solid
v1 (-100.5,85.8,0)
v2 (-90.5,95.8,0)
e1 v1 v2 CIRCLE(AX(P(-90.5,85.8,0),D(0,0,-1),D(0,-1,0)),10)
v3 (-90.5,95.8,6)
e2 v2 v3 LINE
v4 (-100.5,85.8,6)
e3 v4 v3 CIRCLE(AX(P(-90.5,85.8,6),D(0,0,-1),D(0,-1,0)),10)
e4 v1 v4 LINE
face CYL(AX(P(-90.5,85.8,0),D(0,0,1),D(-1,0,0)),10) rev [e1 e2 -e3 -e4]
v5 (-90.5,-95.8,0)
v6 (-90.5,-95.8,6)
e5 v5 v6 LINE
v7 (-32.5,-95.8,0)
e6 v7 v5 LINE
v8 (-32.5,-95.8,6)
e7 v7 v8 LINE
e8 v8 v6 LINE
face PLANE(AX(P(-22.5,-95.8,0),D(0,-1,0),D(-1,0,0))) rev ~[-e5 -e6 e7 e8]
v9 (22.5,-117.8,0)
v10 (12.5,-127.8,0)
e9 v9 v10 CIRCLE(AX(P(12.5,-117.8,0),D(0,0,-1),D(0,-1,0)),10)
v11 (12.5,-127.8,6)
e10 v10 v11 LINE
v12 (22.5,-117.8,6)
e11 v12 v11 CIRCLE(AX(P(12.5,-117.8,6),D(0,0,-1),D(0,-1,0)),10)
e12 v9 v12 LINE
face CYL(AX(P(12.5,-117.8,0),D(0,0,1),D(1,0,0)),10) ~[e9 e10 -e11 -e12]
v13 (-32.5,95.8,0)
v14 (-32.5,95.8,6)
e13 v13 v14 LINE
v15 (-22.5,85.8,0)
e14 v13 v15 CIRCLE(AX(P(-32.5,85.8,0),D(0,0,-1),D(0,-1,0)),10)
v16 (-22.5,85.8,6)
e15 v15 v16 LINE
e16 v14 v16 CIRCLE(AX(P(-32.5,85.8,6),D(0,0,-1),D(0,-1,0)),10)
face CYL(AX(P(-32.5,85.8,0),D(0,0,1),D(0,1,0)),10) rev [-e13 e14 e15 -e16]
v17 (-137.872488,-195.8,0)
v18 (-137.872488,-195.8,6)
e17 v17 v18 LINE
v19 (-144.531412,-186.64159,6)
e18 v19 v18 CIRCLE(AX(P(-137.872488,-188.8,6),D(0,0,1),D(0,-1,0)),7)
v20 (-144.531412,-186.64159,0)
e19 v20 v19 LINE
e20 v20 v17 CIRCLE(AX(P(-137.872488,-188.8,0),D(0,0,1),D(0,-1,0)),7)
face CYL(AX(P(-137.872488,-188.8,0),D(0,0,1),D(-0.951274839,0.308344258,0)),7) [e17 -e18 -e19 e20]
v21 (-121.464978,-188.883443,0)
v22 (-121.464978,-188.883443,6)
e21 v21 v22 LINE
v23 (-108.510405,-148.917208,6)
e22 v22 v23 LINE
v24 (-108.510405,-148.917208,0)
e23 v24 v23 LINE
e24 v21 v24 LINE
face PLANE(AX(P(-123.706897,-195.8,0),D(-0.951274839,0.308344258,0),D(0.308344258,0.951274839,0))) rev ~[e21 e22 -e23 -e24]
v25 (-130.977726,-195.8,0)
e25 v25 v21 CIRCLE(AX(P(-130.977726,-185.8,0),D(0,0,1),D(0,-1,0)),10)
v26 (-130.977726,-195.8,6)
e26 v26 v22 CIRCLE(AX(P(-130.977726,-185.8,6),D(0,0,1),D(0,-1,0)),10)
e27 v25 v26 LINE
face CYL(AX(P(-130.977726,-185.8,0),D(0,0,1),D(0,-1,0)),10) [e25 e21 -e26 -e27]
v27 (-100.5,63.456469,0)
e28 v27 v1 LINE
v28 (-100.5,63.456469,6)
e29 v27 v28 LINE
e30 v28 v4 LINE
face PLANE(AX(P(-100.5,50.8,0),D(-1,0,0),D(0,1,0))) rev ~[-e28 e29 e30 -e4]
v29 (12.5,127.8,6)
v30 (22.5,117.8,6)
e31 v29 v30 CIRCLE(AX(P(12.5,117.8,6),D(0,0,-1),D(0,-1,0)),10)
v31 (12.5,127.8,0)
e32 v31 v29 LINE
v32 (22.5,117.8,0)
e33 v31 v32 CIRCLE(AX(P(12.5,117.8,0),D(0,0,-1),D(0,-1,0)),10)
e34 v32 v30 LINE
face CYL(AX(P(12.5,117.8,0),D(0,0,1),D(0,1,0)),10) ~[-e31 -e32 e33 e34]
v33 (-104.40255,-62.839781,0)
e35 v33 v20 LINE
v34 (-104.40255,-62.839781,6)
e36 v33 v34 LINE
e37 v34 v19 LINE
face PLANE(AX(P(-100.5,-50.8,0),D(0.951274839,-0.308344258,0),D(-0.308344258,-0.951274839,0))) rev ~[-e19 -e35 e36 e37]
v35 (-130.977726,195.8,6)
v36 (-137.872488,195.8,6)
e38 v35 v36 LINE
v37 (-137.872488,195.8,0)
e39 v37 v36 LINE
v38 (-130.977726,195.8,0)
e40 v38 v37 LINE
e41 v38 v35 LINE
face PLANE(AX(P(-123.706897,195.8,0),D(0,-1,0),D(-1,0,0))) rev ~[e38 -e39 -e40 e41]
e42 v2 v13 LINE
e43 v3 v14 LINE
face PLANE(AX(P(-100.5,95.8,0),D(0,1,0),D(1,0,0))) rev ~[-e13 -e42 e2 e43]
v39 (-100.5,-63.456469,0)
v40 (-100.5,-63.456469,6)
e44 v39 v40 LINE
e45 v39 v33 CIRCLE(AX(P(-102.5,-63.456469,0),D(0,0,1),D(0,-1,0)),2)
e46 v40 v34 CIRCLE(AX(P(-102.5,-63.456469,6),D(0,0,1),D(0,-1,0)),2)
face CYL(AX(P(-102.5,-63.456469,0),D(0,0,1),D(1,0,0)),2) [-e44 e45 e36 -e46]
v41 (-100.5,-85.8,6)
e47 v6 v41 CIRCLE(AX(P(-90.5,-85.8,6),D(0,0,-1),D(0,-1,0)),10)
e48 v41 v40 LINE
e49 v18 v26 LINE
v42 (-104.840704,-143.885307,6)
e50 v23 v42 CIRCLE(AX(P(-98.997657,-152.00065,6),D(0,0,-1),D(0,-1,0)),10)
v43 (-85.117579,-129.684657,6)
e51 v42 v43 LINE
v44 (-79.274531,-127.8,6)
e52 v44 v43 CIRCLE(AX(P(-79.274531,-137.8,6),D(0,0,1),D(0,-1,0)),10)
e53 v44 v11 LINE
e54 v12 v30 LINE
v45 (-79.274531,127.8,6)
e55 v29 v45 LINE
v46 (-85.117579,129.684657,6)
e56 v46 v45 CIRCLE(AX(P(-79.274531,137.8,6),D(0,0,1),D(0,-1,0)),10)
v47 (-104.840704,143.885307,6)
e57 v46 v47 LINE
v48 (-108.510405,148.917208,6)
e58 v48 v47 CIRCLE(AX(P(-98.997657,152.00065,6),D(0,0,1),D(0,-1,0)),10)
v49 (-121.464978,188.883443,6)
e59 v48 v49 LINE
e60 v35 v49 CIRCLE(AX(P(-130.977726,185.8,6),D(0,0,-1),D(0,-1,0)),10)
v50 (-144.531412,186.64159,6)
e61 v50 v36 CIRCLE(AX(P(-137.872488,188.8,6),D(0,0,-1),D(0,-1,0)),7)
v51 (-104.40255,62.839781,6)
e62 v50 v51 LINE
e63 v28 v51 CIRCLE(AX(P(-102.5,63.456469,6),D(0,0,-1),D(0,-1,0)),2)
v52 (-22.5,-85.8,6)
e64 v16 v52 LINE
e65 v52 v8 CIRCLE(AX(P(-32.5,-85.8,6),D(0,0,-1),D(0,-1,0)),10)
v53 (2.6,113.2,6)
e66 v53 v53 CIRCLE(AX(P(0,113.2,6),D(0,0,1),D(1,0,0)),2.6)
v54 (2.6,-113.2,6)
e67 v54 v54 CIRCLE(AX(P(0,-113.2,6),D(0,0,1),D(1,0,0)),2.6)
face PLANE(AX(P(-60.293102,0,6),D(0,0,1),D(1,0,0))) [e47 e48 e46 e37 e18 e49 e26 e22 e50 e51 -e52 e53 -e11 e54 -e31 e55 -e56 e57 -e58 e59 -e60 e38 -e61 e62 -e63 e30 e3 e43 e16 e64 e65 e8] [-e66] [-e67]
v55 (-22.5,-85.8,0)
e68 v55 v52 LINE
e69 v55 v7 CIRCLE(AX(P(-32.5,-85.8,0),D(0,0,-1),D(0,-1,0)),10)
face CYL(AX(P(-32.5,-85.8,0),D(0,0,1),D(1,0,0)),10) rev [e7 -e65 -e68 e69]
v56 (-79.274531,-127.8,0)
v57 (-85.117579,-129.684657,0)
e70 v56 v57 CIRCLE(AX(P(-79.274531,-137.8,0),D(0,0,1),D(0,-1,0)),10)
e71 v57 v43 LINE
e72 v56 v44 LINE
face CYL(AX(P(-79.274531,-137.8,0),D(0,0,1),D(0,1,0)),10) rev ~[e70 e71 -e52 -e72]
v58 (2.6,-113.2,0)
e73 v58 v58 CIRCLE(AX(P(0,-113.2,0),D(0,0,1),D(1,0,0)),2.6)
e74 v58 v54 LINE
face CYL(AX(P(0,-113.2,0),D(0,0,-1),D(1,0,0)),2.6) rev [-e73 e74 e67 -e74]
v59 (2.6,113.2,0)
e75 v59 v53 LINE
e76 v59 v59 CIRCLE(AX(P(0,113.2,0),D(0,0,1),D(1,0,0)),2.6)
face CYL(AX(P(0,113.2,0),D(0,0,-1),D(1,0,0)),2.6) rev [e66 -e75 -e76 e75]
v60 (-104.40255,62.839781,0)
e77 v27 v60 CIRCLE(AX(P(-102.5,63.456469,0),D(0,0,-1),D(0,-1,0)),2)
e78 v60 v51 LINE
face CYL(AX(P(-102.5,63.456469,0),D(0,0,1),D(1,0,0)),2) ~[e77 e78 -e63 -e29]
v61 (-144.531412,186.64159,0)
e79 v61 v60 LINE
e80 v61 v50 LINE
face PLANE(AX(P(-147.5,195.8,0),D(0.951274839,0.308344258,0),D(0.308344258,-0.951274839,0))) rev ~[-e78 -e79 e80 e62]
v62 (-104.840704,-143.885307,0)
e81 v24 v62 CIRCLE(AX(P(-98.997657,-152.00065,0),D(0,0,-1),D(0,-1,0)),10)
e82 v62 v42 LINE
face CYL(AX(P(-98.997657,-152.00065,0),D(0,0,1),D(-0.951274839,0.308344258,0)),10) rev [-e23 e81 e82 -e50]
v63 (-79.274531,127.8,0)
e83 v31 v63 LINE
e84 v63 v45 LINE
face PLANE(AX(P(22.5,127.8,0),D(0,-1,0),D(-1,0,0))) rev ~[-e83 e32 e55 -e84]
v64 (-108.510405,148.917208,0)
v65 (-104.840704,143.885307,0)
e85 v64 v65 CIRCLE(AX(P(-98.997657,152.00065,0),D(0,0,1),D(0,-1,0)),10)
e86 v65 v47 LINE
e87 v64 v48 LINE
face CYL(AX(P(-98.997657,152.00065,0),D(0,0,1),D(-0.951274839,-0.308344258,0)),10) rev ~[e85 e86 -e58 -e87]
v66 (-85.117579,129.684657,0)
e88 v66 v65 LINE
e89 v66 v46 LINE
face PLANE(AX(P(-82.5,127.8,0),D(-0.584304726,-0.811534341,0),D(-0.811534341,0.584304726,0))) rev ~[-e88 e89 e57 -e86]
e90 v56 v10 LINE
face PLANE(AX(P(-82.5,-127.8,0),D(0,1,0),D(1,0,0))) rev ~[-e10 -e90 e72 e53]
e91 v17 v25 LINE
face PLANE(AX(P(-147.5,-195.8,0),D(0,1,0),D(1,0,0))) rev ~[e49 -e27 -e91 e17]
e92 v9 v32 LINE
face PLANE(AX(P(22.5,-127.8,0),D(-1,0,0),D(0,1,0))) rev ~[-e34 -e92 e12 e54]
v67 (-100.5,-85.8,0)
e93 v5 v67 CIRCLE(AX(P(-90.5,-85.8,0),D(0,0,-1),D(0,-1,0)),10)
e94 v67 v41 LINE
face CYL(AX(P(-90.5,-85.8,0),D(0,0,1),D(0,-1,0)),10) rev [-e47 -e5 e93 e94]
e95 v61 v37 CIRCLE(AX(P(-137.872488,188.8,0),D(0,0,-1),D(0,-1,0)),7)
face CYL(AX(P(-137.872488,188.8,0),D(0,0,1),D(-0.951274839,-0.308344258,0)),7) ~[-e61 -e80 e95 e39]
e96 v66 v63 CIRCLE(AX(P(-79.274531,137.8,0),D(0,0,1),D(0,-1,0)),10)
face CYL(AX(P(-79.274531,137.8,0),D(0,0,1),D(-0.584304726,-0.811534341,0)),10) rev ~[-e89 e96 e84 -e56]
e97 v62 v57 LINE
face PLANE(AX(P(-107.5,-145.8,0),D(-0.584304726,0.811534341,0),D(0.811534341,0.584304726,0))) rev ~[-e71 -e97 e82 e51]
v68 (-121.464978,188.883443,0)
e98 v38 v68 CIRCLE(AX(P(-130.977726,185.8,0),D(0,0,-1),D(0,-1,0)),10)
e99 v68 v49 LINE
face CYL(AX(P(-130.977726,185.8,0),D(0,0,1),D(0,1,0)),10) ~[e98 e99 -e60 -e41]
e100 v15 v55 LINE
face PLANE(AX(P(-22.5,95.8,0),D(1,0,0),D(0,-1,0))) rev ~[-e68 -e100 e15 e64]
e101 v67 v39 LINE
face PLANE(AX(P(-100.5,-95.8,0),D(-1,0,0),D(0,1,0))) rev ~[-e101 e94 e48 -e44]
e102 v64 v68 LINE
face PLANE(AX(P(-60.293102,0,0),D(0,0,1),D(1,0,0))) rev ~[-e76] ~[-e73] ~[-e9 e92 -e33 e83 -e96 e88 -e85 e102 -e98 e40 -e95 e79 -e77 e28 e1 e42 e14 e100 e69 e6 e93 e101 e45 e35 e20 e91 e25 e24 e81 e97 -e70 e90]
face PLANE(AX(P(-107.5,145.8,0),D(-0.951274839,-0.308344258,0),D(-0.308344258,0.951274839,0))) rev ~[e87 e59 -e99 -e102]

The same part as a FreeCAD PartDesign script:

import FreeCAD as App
import Part
import Sketcher
from FreeCAD import Vector
Q = App.Units.Quantity


def edges_at(feature, points):
    """Names of the edges that pass closest to the given points."""
    edges = feature.Shape.Edges
    near = lambda p: min(range(len(edges)), key=lambda i: edges[i].distToShape(Part.Vertex(*p))[0])
    return sorted({f"Edge{near(p) + 1}" for p in points})

doc = App.newDocument("Part")
params = doc.addObject("Spreadsheet::Sheet", "Params")
for row, (alias, value) in enumerate([
    ("sketch1_diameter", "5.2 mm"),
    ("sketch1_width", "78 mm"),
    ("sketch1_width2", "105 mm"),
    ("sketch1_height", "45 mm"),
    ("sketch1_height2", "191.6 mm"),
    ("pad1_length", "6 mm"),
    ("fillet_radius", "2 mm"),
    ("fillet2_radius", "10 mm"),
    ("fillet3_radius", "7 mm"),
], start=1):
    params.set(f"A{row}", alias)
    params.set(f"B{row}", "=" + value)
    params.setAlias(f"B{row}", alias)

body = doc.addObject("PartDesign::Body", "Body")

sketch1 = doc.addObject("Sketcher::SketchObject", "Sketch")
body.addObject(sketch1)
sketch1.AttachmentSupport = (doc.XY_Plane, [""])
sketch1.MapMode = "FlatFace"
sketch1.addGeometry([
    Part.LineSegment(Vector(-100.5, 95.8, 0), Vector(-22.5, 95.8, 0)),
    Part.LineSegment(Vector(-22.5, 95.8, 0), Vector(-22.5, -95.8, 0)),
    Part.LineSegment(Vector(-22.5, -95.8, 0), Vector(-100.5, -95.8, 0)),
    Part.LineSegment(Vector(-100.5, -95.8, 0), Vector(-100.5, -50.8, 0)),
    Part.LineSegment(Vector(-100.5, -50.8, 0), Vector(-147.5, -195.8, 0)),
    Part.LineSegment(Vector(-147.5, -195.8, 0), Vector(-123.706897, -195.8, 0)),
    Part.LineSegment(Vector(-123.706897, -195.8, 0), Vector(-107.5, -145.8, 0)),
    Part.LineSegment(Vector(-107.5, -145.8, 0), Vector(-82.5, -127.8, 0)),
    Part.LineSegment(Vector(-82.5, -127.8, 0), Vector(22.5, -127.8, 0)),
    Part.LineSegment(Vector(22.5, -127.8, 0), Vector(22.5, 127.8, 0)),
    Part.LineSegment(Vector(22.5, 127.8, 0), Vector(-82.5, 127.8, 0)),
    Part.LineSegment(Vector(-82.5, 127.8, 0), Vector(-107.5, 145.8, 0)),
    Part.LineSegment(Vector(-107.5, 145.8, 0), Vector(-123.706897, 195.8, 0)),
    Part.LineSegment(Vector(-123.706897, 195.8, 0), Vector(-147.5, 195.8, 0)),
    Part.LineSegment(Vector(-147.5, 195.8, 0), Vector(-100.5, 50.8, 0)),
    Part.LineSegment(Vector(-100.5, 50.8, 0), Vector(-100.5, 95.8, 0)),
    Part.Circle(Vector(0, -113.2, 0), Vector(0, 0, 1), 2.6),
    Part.Circle(Vector(0, 113.2, 0), Vector(0, 0, 1), 2.6),
], False)
sketch1.addConstraint([
    Sketcher.Constraint("Coincident", 0, 2, 1, 1),
    Sketcher.Constraint("Coincident", 1, 2, 2, 1),
    Sketcher.Constraint("Coincident", 2, 2, 3, 1),
    Sketcher.Constraint("Coincident", 3, 2, 4, 1),
    Sketcher.Constraint("Coincident", 4, 2, 5, 1),
    Sketcher.Constraint("Coincident", 5, 2, 6, 1),
    Sketcher.Constraint("Coincident", 6, 2, 7, 1),
    Sketcher.Constraint("Coincident", 7, 2, 8, 1),
    Sketcher.Constraint("Coincident", 8, 2, 9, 1),
    Sketcher.Constraint("Coincident", 9, 2, 10, 1),
    Sketcher.Constraint("Coincident", 10, 2, 11, 1),
    Sketcher.Constraint("Coincident", 11, 2, 12, 1),
    Sketcher.Constraint("Coincident", 12, 2, 13, 1),
    Sketcher.Constraint("Coincident", 13, 2, 14, 1),
    Sketcher.Constraint("Coincident", 14, 2, 15, 1),
    Sketcher.Constraint("Coincident", 15, 2, 0, 1),
    Sketcher.Constraint("Horizontal", 0),
    Sketcher.Constraint("Vertical", 1),
    Sketcher.Constraint("Horizontal", 2),
    Sketcher.Constraint("Vertical", 3),
    Sketcher.Constraint("Horizontal", 5),
    Sketcher.Constraint("Horizontal", 8),
    Sketcher.Constraint("Vertical", 9),
    Sketcher.Constraint("Horizontal", 10),
    Sketcher.Constraint("Horizontal", 13),
    Sketcher.Constraint("Vertical", 15),
    Sketcher.Constraint("Equal", 16, 17),
    Sketcher.Constraint("Symmetric", 16, 3, 17, 3, -1, 1),
    Sketcher.Constraint("Symmetric", 7, 2, 10, 2, -1),
    Sketcher.Constraint("Symmetric", 6, 2, 11, 2, -1),
    Sketcher.Constraint("Symmetric", 5, 2, 12, 2, -1),
    Sketcher.Constraint("Symmetric", 3, 2, 14, 2, -1),
    Sketcher.Constraint("PointOnObject", 16, 3, -2),
    Sketcher.Constraint("Parallel", 4, 6),
    Sketcher.Constraint("Parallel", 12, 14),
    Sketcher.Constraint("Equal", 3, 15),
    Sketcher.Constraint("Diameter", 16, Q("5.2 mm")),
    Sketcher.Constraint("DistanceX", 0, 1, 0, 2, Q("78 mm")),
    Sketcher.Constraint("DistanceX", 8, 1, 8, 2, Q("105 mm")),
    Sketcher.Constraint("DistanceY", 3, 1, 3, 2, Q("45 mm")),
    Sketcher.Constraint("DistanceY", 1, 2, 1, 1, Q("191.6 mm")),
    Sketcher.Constraint("DistanceY", 9, 1, 9, 2, Q("255.6 mm")),
    Sketcher.Constraint("DistanceY", 16, 3, 0, 2, Q("209 mm")),
    Sketcher.Constraint("DistanceX", 4, 2, 2, 2, Q("47 mm")),
    Sketcher.Constraint("DistanceY", 4, 2, 2, 2, Q("100 mm")),
    Sketcher.Constraint("DistanceX", 6, 2, 2, 2, Q("7 mm")),
    Sketcher.Constraint("DistanceY", 6, 2, 2, 2, Q("50 mm")),
    Sketcher.Constraint("DistanceX", 6, 2, 7, 2, Q("25 mm")),
    Sketcher.Constraint("DistanceX", 0, 2, -1, 1, Q("22.5 mm")),
])
sketch1.setExpression("Constraints[36]", "Params.sketch1_diameter")
sketch1.setExpression("Constraints[37]", "Params.sketch1_width")
sketch1.setExpression("Constraints[38]", "Params.sketch1_width2")
sketch1.setExpression("Constraints[39]", "Params.sketch1_height")
sketch1.setExpression("Constraints[40]", "Params.sketch1_height2")
pad1 = doc.addObject("PartDesign::Pad", "Pad")
body.addObject(pad1)
pad1.Profile = sketch1
pad1.setExpression("Length", "Params.pad1_length")
doc.recompute()

fillet = doc.addObject("PartDesign::Fillet", "Fillet")
body.addObject(fillet)
fillet.Base = (pad1, edges_at(pad1, [(-100.5, -50.8, 3), (-100.5, 50.8, 3)]))
fillet.setExpression("Radius", "Params.fillet_radius")
doc.recompute()

fillet2 = doc.addObject("PartDesign::Fillet", "Fillet001")
body.addObject(fillet2)
fillet2.Base = (fillet, edges_at(fillet, [
    (-82.5, 127.8, 3),
    (22.5, 127.8, 3),
    (22.5, -127.8, 3),
    (-82.5, -127.8, 3),
    (-107.5, -145.8, 3),
    (-123.707, -195.8, 3),
    (-100.5, -95.8, 3),
    (-22.5, -95.8, 3),
    (-22.5, 95.8, 3),
    (-100.5, 95.8, 3),
    (-123.707, 195.8, 3),
    (-107.5, 145.8, 3),
]))
fillet2.setExpression("Radius", "Params.fillet2_radius")
doc.recompute()

fillet3 = doc.addObject("PartDesign::Fillet", "Fillet002")
body.addObject(fillet3)
fillet3.Base = (fillet2, edges_at(fillet2, [(-147.5, -195.8, 3), (-147.5, 195.8, 3)]))
fillet3.setExpression("Radius", "Params.fillet3_radius")

doc.recompute()
